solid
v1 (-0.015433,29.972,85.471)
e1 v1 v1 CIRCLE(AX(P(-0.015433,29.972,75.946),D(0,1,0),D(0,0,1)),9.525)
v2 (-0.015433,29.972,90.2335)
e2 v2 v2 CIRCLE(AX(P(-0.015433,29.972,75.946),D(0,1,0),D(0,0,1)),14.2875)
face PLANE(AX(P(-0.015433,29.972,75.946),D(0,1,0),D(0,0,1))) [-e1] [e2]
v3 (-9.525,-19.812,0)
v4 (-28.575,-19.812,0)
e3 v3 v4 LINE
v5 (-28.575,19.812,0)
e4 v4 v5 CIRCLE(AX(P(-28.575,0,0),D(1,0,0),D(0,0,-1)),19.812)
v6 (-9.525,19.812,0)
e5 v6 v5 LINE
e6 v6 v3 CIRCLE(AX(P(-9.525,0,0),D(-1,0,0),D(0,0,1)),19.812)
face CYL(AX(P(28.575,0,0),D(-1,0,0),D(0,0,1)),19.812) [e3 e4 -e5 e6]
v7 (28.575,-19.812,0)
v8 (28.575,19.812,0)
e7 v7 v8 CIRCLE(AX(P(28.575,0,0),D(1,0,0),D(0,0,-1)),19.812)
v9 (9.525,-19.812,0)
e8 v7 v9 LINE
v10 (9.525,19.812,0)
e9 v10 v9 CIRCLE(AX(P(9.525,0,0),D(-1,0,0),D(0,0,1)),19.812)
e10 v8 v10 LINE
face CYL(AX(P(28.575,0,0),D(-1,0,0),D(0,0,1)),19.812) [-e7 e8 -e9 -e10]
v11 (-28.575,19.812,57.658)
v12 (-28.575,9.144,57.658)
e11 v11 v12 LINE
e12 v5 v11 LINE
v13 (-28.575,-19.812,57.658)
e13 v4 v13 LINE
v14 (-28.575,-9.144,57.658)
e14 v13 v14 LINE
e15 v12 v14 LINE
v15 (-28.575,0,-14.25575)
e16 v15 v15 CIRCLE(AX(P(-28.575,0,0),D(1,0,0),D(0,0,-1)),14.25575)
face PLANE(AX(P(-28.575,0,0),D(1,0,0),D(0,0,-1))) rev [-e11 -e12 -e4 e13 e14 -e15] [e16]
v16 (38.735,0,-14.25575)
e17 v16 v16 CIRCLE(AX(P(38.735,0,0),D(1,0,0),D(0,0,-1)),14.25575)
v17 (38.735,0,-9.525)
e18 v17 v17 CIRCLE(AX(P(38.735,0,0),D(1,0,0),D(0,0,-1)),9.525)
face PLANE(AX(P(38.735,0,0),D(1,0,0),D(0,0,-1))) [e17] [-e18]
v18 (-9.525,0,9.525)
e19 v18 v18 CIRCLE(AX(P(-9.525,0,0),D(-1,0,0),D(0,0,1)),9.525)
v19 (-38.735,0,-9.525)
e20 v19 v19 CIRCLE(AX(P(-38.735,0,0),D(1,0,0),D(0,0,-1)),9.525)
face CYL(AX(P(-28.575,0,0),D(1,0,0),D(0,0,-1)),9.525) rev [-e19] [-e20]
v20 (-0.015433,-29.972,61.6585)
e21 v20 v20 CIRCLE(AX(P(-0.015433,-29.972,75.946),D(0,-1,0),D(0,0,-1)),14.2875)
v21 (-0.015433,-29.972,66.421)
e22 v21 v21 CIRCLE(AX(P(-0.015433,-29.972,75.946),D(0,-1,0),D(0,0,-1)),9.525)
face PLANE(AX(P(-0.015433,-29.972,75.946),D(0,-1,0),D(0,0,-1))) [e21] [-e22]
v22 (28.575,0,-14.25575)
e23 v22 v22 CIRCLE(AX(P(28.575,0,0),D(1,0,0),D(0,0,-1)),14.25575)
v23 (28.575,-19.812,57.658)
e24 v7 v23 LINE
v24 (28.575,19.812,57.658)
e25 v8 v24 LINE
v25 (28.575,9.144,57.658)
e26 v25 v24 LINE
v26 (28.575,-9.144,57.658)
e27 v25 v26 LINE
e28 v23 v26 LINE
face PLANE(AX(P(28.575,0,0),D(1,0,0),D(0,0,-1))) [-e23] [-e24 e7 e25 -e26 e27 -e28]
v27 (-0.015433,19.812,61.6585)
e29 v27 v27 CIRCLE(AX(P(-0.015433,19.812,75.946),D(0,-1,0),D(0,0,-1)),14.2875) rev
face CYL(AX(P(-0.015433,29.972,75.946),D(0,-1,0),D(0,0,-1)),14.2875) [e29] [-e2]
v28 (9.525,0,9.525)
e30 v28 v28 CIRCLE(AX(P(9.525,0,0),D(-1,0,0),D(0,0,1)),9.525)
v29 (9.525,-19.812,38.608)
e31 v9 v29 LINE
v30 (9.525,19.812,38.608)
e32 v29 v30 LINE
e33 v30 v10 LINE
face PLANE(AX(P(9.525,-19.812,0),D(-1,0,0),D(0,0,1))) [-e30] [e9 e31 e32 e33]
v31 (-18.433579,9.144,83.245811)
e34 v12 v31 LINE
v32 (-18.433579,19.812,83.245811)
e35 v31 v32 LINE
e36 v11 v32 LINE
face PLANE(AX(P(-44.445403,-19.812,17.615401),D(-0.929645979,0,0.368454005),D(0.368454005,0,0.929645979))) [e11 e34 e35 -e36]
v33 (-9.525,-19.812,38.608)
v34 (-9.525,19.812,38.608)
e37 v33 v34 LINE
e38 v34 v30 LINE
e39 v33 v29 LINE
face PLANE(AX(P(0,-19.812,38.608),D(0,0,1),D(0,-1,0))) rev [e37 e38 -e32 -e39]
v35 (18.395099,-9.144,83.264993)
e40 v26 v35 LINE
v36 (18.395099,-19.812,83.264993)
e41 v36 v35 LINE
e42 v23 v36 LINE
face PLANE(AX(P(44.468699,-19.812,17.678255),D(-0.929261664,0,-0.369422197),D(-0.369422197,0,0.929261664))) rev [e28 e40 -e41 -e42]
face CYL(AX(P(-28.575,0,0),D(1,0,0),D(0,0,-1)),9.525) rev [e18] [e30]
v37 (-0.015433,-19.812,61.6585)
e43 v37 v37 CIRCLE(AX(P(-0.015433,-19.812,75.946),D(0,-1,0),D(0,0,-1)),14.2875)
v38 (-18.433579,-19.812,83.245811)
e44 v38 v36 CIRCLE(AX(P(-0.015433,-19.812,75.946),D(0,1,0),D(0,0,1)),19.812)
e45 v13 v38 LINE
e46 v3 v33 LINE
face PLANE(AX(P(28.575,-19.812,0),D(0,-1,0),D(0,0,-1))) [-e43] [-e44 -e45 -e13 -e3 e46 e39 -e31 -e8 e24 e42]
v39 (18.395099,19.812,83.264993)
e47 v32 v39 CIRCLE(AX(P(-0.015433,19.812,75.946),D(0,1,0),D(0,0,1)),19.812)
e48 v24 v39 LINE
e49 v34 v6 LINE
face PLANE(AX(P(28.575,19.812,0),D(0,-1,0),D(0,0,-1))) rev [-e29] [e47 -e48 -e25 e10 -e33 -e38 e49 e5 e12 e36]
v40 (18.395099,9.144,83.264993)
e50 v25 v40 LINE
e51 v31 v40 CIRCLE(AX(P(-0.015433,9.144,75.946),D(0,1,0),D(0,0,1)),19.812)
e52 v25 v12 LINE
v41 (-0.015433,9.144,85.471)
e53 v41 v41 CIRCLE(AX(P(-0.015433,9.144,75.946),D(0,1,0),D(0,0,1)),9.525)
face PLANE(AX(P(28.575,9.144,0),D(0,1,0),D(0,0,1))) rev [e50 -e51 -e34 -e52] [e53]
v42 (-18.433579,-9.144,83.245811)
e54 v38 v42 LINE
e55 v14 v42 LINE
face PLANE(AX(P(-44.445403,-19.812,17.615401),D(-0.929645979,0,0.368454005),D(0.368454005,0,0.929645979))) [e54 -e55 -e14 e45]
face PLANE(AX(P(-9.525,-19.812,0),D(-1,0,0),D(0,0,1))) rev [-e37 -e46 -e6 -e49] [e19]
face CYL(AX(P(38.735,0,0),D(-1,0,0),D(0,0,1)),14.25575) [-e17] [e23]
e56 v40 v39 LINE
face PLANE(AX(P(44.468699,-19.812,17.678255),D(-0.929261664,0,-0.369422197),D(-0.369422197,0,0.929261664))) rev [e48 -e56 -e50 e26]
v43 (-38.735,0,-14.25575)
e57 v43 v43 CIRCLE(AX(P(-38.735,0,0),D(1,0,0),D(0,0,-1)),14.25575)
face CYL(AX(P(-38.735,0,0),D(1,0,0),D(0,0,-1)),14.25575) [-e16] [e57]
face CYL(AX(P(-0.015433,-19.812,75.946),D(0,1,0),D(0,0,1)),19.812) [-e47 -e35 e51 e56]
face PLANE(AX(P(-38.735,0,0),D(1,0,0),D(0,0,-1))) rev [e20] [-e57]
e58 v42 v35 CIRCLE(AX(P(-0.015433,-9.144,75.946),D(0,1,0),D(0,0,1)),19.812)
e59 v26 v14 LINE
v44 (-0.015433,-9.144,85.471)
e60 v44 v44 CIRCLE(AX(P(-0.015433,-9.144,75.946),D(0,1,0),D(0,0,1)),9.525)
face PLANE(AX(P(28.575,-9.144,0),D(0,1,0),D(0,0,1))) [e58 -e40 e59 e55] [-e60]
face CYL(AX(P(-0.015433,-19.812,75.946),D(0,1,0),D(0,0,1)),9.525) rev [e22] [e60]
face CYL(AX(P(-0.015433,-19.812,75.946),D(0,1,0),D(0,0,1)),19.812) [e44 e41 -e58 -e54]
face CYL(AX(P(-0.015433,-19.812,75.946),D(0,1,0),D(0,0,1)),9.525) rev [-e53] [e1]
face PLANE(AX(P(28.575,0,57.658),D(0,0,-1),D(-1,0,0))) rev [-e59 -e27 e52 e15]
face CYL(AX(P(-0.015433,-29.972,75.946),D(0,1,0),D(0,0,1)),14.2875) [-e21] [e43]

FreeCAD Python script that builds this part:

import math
import FreeCAD as App
import Part
import Sketcher
Q = App.Units.Quantity

doc = App.newDocument("Part")
body = doc.addObject("PartDesign::Body", "Body")

# Sketch on YZ plane
sketch1 = body.newObject("Sketcher::SketchObject", "Sketch")
sketch1.AttachmentSupport = (doc.getObject("YZ_Plane"), [""])
sketch1.MapMode = "FlatFace"
sketch1.addGeometry([
    Part.ArcOfCircle(Part.Circle(App.Vector(0, 0, 0), App.Vector(0, 0, 1), 20), math.radians(180), math.radians(360)),  # 0
    Part.LineSegment(App.Vector(20, 0, 0), App.Vector(20, 96, 0)),  # 1
    Part.LineSegment(App.Vector(20, 96, 0), App.Vector(9, 96, 0)),  # 2
    Part.LineSegment(App.Vector(9, 96, 0), App.Vector(9, 58, 0)),  # 3
    Part.LineSegment(App.Vector(9, 58, 0), App.Vector(-9, 58, 0)),  # 4
    Part.LineSegment(App.Vector(-9, 58, 0), App.Vector(-9, 96, 0)),  # 5
    Part.LineSegment(App.Vector(-9, 96, 0), App.Vector(-20, 96, 0)),  # 6
    Part.LineSegment(App.Vector(-20, 96, 0), App.Vector(-20, 0, 0)),  # 7
], False)
sketch1.addConstraint([
    Sketcher.Constraint("Tangent", 0, 2, 1, 1),
    Sketcher.Constraint("Coincident", 1, 2, 2, 1),
    Sketcher.Constraint("Coincident", 2, 2, 3, 1),
    Sketcher.Constraint("Coincident", 3, 2, 4, 1),
    Sketcher.Constraint("Coincident", 4, 2, 5, 1),
    Sketcher.Constraint("Coincident", 5, 2, 6, 1),
    Sketcher.Constraint("Coincident", 6, 2, 7, 1),
    Sketcher.Constraint("Tangent", 7, 2, 0, 1),
    Sketcher.Constraint("Vertical", 1),
    Sketcher.Constraint("Horizontal", 2),
    Sketcher.Constraint("Vertical", 3),
    Sketcher.Constraint("Horizontal", 4),
    Sketcher.Constraint("Vertical", 5),
    Sketcher.Constraint("Horizontal", 6),
    Sketcher.Constraint("Vertical", 7),
    Sketcher.Constraint("Coincident", 0, 3, -1, 1),
    Sketcher.Constraint("Symmetric", 2, 2, 5, 2, -2),
    Sketcher.Constraint("Radius", 0, Q("0.78 in")),
    Sketcher.Constraint("DistanceY", 3, 2, 3, 1, Q("1.5 in")),
    Sketcher.Constraint("DistanceX", 2, 2, 2, 1, Q("0.42 in")),
    Sketcher.Constraint("DistanceY", 1, 1, 1, 2, Q("3.77 in")),
])
pad1 = body.newObject("PartDesign::Pad", "Pad")
pad1.Profile = sketch1
pad1.Length = Q("2.25 in")
pad1.Midplane = True

# Sketch on XZ plane
sketch2 = body.newObject("Sketcher::SketchObject", "Sketch001")
sketch2.AttachmentSupport = (doc.getObject("XZ_Plane"), [""])
sketch2.MapMode = "FlatFace"
sketch2.AttachmentOffset = App.Placement(App.Vector(0, 0, -0.78 * 25.4), App.Rotation())
sketch2.addGeometry([
    Part.LineSegment(App.Vector(-10, 39, 0), App.Vector(10, 39, 0)),  # 0
    Part.LineSegment(App.Vector(10, 39, 0), App.Vector(10, -20, 0)),  # 1
    Part.LineSegment(App.Vector(10, -20, 0), App.Vector(-10, -20, 0)),  # 2
    Part.LineSegment(App.Vector(-10, -20, 0), App.Vector(-10, 39, 0)),  # 3
    Part.LineSegment(App.Vector(29, 96, 0), App.Vector(29, 58, 0)),  # 4
    Part.LineSegment(App.Vector(29, 58, 0), App.Vector(18, 83, 0)),  # 5
    Part.ArcOfCircle(Part.Circle(App.Vector(0, 76, 0), App.Vector(0, 0, 1), 20), math.radians(22), math.radians(90)),  # 6
    Part.LineSegment(App.Vector(0, 96, 0), App.Vector(29, 96, 0)),  # 7
    Part.Circle(App.Vector(0, 76, 0), App.Vector(0, 0, 1), 10),  # 8
    Part.LineSegment(App.Vector(-18, 83, 0), App.Vector(-29, 58, 0)),  # 9
    Part.LineSegment(App.Vector(-29, 58, 0), App.Vector(-29, 96, 0)),  # 10
    Part.LineSegment(App.Vector(-29, 96, 0), App.Vector(0, 96, 0)),  # 11
    Part.ArcOfCircle(Part.Circle(App.Vector(0, 76, 0), App.Vector(0, 0, 1), 20), math.radians(90), math.radians(158)),  # 12
], False)
sketch2.addConstraint([
    Sketcher.Constraint("Coincident", 0, 2, 1, 1),
    Sketcher.Constraint("Coincident", 1, 2, 2, 1),
    Sketcher.Constraint("Coincident", 2, 2, 3, 1),
    Sketcher.Constraint("Coincident", 3, 2, 0, 1),
    Sketcher.Constraint("Coincident", 4, 2, 5, 1),
    Sketcher.Constraint("Tangent", 5, 2, 6, 1),
    Sketcher.Constraint("Tangent", 6, 2, 7, 1),
    Sketcher.Constraint("Coincident", 7, 2, 4, 1),
    Sketcher.Constraint("Coincident", 9, 2, 10, 1),
    Sketcher.Constraint("Coincident", 10, 2, 11, 1),
    Sketcher.Constraint("Tangent", 11, 2, 12, 1),
    Sketcher.Constraint("Tangent", 12, 2, 9, 1),
    Sketcher.Constraint("Horizontal", 0),
    Sketcher.Constraint("Vertical", 1),
    Sketcher.Constraint("Horizontal", 2),
    Sketcher.Constraint("Vertical", 3),
    Sketcher.Constraint("Vertical", 4),
    Sketcher.Constraint("Horizontal", 7),
    Sketcher.Constraint("Vertical", 10),
    Sketcher.Constraint("Horizontal", 11),
    Sketcher.Constraint("Coincident", 8, 3, 6, 3),
    Sketcher.Constraint("Coincident", 12, 3, 6, 3),
    Sketcher.Constraint("Equal", 6, 12),
    Sketcher.Constraint("Symmetric", 4, 2, 9, 2, -2),
    Sketcher.Constraint("Diameter", 8, Q("0.75 in")),
    Sketcher.Constraint("Radius", 6, Q("0.78 in")),
    Sketcher.Constraint("DistanceY", 1, 2, 1, 1, Q("2.3 in")),
    Sketcher.Constraint("DistanceY", 4, 2, 4, 1, Q("1.5 in")),
    Sketcher.Constraint("DistanceX", 0, 1, 0, 2, Q("0.75 in")),
    Sketcher.Constraint("DistanceX", 3, 2, 4, 2, Q("1.5 in")),
    Sketcher.Constraint("DistanceX", 9, 2, 0, 2, Q("1.5 in")),
    Sketcher.Constraint("DistanceY", -1, 1, 6, 3, Q("2.99 in")),
    Sketcher.Constraint("DistanceY", -1, 1, 0, 2, Q("1.52 in")),
    Sketcher.Constraint("Angle", 5, Q("111.679987 deg")),
])
pocket1 = body.newObject("PartDesign::Pocket", "Pocket")
pocket1.Profile = sketch2
pocket1.Type = "ThroughAll"
pocket1.Reversed = True

# Sketch on XZ plane
sketch3 = body.newObject("Sketcher::SketchObject", "Sketch002")
sketch3.AttachmentSupport = (doc.getObject("XZ_Plane"), [""])
sketch3.MapMode = "FlatFace"
sketch3.AttachmentOffset = App.Placement(App.Vector(0, 0, -0.78 * 25.4), App.Rotation())
sketch3.addGeometry([
    Part.Circle(App.Vector(0, 76, 0), App.Vector(0, 0, 1), 14),
    Part.Circle(App.Vector(0, 76, 0), App.Vector(0, 0, 1), 10),
], False)
sketch3.addConstraint([
    Sketcher.Constraint("Coincident", 1, 3, 0, 3),
    Sketcher.Constraint("Diameter", 1, Q("0.75 in")),
    Sketcher.Constraint("Diameter", 0, Q("1.125 in")),
    Sketcher.Constraint("DistanceY", -1, 1, 0, 3, Q("2.99 in")),
    Sketcher.Constraint("DistanceX", 0, 3, -1, 1, 0.015433),
])
pad2 = body.newObject("PartDesign::Pad", "Pad001")
pad2.Profile = sketch3
pad2.Length = Q("0.4 in")
pad2.Reversed = True

# Sketch on XZ plane
sketch4 = body.newObject("Sketcher::SketchObject", "Sketch003")
sketch4.AttachmentSupport = (doc.getObject("XZ_Plane"), [""])
sketch4.MapMode = "FlatFace"
sketch4.AttachmentOffset = App.Placement(App.Vector(0, 0, 0.78 * 25.4), App.Rotation())
sketch4.addGeometry([
    Part.Circle(App.Vector(0, 76, 0), App.Vector(0, 0, 1), 14),
    Part.Circle(App.Vector(0, 76, 0), App.Vector(0, 0, 1), 10),
], False)
sketch4.addConstraint([
    Sketcher.Constraint("Coincident", 1, 3, 0, 3),
    Sketcher.Constraint("Diameter", 1, Q("0.75 in")),
    Sketcher.Constraint("Diameter", 0, Q("1.125 in")),
    Sketcher.Constraint("DistanceY", -1, 1, 0, 3, Q("2.99 in")),
    Sketcher.Constraint("DistanceX", 0, 3, -1, 1, 0.015433),
])
pad3 = body.newObject("PartDesign::Pad", "Pad002")
pad3.Profile = sketch4
pad3.Length = Q("0.4 in")

# Sketch on YZ plane
sketch5 = body.newObject("Sketcher::SketchObject", "Sketch004")
sketch5.AttachmentSupport = (doc.getObject("YZ_Plane"), [""])
sketch5.MapMode = "FlatFace"
sketch5.AttachmentOffset = App.Placement(App.Vector(0, 0, 1.125 * 25.4), App.Rotation())
sketch5.addGeometry(Part.Circle(App.Vector(0, 0, 0), App.Vector(0, 0, 1), 10), False)
sketch5.addConstraint([
    Sketcher.Constraint("Coincident", 0, 3, -1, 1),
    Sketcher.Constraint("Diameter", 0, Q("0.75 in")),
])
pocket2 = body.newObject("PartDesign::Pocket", "Pocket001")
pocket2.Profile = sketch5
pocket2.Type = "ThroughAll"

# Sketch on YZ plane
sketch6 = body.newObject("Sketcher::SketchObject", "Sketch005")
sketch6.AttachmentSupport = (doc.getObject("YZ_Plane"), [""])
sketch6.MapMode = "FlatFace"
sketch6.AttachmentOffset = App.Placement(App.Vector(0, 0, 1.125 * 25.4), App.Rotation())
sketch6.addGeometry([
    Part.Circle(App.Vector(0, 0, 0), App.Vector(0, 0, 1), 14),
    Part.Circle(App.Vector(0, 0, 0), App.Vector(0, 0, 1), 10),
], False)
sketch6.addConstraint([
    Sketcher.Constraint("Coincident", 0, 3, -1, 1),
    Sketcher.Constraint("Coincident", 1, 3, -1, 1),
    Sketcher.Constraint("Diameter", 1, Q("0.75 in")),
    Sketcher.Constraint("Diameter", 0, Q("1.1225 in")),
])
pad4 = body.newObject("PartDesign::Pad", "Pad003")
pad4.Profile = sketch6
pad4.Length = Q("0.4 in")

# Sketch on YZ plane
sketch7 = body.newObject("Sketcher::SketchObject", "Sketch006")
sketch7.AttachmentSupport = (doc.getObject("YZ_Plane"), [""])
sketch7.MapMode = "FlatFace"
sketch7.AttachmentOffset = App.Placement(App.Vector(0, 0, -1.125 * 25.4), App.Rotation())
sketch7.addGeometry([
    Part.Circle(App.Vector(0, 0, 0), App.Vector(0, 0, 1), 14),
    Part.Circle(App.Vector(0, 0, 0), App.Vector(0, 0, 1), 10),
], False)
sketch7.addConstraint([
    Sketcher.Constraint("Coincident", 0, 3, -1, 1),
    Sketcher.Constraint("Coincident", 1, 3, -1, 1),
    Sketcher.Constraint("Diameter", 1, Q("0.75 in")),
    Sketcher.Constraint("Diameter", 0, Q("1.1225 in")),
])
pad5 = body.newObject("PartDesign::Pad", "Pad004")
pad5.Profile = sketch7
pad5.Length = Q("0.4 in")
pad5.Reversed = True

doc.recompute()
